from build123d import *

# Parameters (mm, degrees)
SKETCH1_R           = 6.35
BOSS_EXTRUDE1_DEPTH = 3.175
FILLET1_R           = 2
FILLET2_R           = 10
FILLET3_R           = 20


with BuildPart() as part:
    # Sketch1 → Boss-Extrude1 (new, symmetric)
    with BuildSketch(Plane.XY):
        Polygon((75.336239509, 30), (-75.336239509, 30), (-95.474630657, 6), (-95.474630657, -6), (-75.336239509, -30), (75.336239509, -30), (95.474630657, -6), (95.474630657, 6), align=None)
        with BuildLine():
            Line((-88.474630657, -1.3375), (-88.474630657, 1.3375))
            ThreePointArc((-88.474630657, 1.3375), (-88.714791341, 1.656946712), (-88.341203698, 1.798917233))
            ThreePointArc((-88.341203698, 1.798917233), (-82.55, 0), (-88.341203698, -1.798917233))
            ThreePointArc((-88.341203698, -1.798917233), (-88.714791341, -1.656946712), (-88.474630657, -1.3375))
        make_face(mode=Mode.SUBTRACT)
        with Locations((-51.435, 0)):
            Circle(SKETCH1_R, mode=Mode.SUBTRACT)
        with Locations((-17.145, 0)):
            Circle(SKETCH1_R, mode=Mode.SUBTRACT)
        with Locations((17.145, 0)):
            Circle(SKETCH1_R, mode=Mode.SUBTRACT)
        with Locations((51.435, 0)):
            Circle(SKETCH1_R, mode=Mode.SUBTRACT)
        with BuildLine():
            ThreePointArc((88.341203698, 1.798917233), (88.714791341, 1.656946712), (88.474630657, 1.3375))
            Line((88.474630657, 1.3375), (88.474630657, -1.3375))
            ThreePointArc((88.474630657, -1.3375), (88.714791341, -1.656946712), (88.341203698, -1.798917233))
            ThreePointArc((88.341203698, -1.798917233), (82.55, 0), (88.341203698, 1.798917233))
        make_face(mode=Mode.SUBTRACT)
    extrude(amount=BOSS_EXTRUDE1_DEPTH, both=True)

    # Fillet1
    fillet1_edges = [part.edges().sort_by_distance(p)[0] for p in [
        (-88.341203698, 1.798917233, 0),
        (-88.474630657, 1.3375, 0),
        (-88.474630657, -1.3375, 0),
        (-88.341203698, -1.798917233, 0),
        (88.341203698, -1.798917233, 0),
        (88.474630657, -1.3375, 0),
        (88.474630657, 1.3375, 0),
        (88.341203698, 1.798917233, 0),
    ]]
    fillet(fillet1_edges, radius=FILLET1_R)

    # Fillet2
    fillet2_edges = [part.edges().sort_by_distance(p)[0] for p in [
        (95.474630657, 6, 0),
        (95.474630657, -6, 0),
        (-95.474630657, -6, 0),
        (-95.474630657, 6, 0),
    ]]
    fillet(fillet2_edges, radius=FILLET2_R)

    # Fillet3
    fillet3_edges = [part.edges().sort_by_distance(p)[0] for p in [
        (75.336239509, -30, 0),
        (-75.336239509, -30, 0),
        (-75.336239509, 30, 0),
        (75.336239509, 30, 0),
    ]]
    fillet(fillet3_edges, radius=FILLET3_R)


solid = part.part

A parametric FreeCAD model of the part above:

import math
import FreeCAD as App
import Part
import Sketcher

V = App.Vector
Q = App.Units.Quantity


def edges_at(feature, points):
    """Names of the edges that pass closest to the given points."""
    edges = feature.Shape.Edges
    near = lambda p: min(range(len(edges)), key=lambda i: edges[i].distToShape(Part.Vertex(*p))[0])
    return sorted({f"Edge{near(p) + 1}" for p in points})


def add_polygon(sketch, points):
    """Adds a closed chain of lines whose ends are joined by coincident constraints."""
    first, n = sketch.GeometryCount, len(points)
    for a, b in zip(points, points[1:] + points[:1]):
        sketch.addGeometry(Part.LineSegment(App.Vector(*a, 0), App.Vector(*b, 0)), False)
    for i in range(n):
        sketch.addConstraint(Sketcher.Constraint("Coincident", first + i, 2, first + (i + 1) % n, 1))

doc = App.newDocument("Part")
body = doc.addObject("PartDesign::Body", "Body")

sketch1 = body.newObject("Sketcher::SketchObject", "Sketch")
sketch1.AttachmentSupport = (doc.getObject("XY_Plane"), [""])
sketch1.MapMode = "FlatFace"
add_polygon(sketch1, [(75.34, 30), (-75.34, 30), (-95.47, 6), (-95.47, -6), (-75.34, -30), (75.34, -30), (95.47, -6), (95.47, 6)])
sketch1.addGeometry(Part.ArcOfCircle(Part.Circle(V(-88.47, -1.59, 0), V(0, 0, 1), 0.25), math.radians(90), math.radians(302)), False)
sketch1.addGeometry(Part.LineSegment(V(-88.47, -1.34, 0), V(-88.47, 1.34, 0)), False)
sketch1.addGeometry(Part.ArcOfCircle(Part.Circle(V(-88.47, 1.59, 0), V(0, 0, 1), 0.25), math.radians(58), math.radians(270)), False)
sketch1.addGeometry(Part.ArcOfCircle(Part.Circle(V(-85.72, 0, 0), V(0, 0, 1), 3.17), math.radians(-145), math.radians(145)), False)
sketch1.addGeometry(Part.Circle(V(-51.44, 0, 0), V(0, 0, 1), 6.35), False)
sketch1.addGeometry(Part.Circle(V(-17.14, 0, 0), V(0, 0, 1), 6.35), False)
sketch1.addGeometry(Part.Circle(V(17.14, 0, 0), V(0, 0, 1), 6.35), False)
sketch1.addGeometry(Part.Circle(V(51.44, 0, 0), V(0, 0, 1), 6.35), False)
sketch1.addGeometry(Part.ArcOfCircle(Part.Circle(V(85.72, 0, 0), V(0, 0, 1), 3.17), math.radians(35), math.radians(325)), False)
sketch1.addGeometry(Part.ArcOfCircle(Part.Circle(V(88.47, 1.59, 0), V(0, 0, 1), 0.25), math.radians(-90), math.radians(122)), False)
sketch1.addGeometry(Part.LineSegment(V(88.47, 1.34, 0), V(88.47, -1.34, 0)), False)
sketch1.addGeometry(Part.ArcOfCircle(Part.Circle(V(88.47, -1.59, 0), V(0, 0, 1), 0.25), math.radians(-122), math.radians(90)), False)
sketch1.addConstraint(Sketcher.Constraint("Coincident", 8, 1, 9, 1))
sketch1.addConstraint(Sketcher.Constraint("Coincident", 9, 2, 10, 2))
sketch1.addConstraint(Sketcher.Constraint("Coincident", 10, 1, 11, 2))
sketch1.addConstraint(Sketcher.Constraint("Coincident", 11, 1, 8, 2))
sketch1.addConstraint(Sketcher.Constraint("Coincident", 16, 1, 17, 2))
sketch1.addConstraint(Sketcher.Constraint("Coincident", 17, 1, 18, 1))
sketch1.addConstraint(Sketcher.Constraint("Coincident", 18, 2, 19, 2))
sketch1.addConstraint(Sketcher.Constraint("Coincident", 19, 1, 16, 2))
sketch1.addConstraint(Sketcher.Constraint("Horizontal", 0))
sketch1.addConstraint(Sketcher.Constraint("Vertical", 2))
sketch1.addConstraint(Sketcher.Constraint("Horizontal", 4))
sketch1.addConstraint(Sketcher.Constraint("Vertical", 6))
sketch1.addConstraint(Sketcher.Constraint("Vertical", 9))
sketch1.addConstraint(Sketcher.Constraint("Vertical", 18))
sketch1.addConstraint(Sketcher.Constraint("Equal", 8, 10))
sketch1.addConstraint(Sketcher.Constraint("Equal", 12, 13))
sketch1.addConstraint(Sketcher.Constraint("Equal", 13, 14))
sketch1.addConstraint(Sketcher.Constraint("Equal", 14, 15))
sketch1.addConstraint(Sketcher.Constraint("Equal", 11, 16))
sketch1.addConstraint(Sketcher.Constraint("Equal", 10, 17))
sketch1.addConstraint(Sketcher.Constraint("Equal", 17, 19))
sketch1.addConstraint(Sketcher.Constraint("Symmetric", 13, 3, 14, 3, -1, 1))
sketch1.addConstraint(Sketcher.Constraint("Symmetric", 12, 3, 15, 3, -1, 1))
sketch1.addConstraint(Sketcher.Constraint("Symmetric", 11, 3, 16, 3, -1, 1))
sketch1.addConstraint(Sketcher.Constraint("Symmetric", 8, 3, 17, 3, -1, 1))
sketch1.addConstraint(Sketcher.Constraint("Symmetric", 10, 3, 19, 3, -1, 1))
sketch1.addConstraint(Sketcher.Constraint("Symmetric", 0, 2, 4, 2, -1, 1))
sketch1.addConstraint(Sketcher.Constraint("Symmetric", 1, 2, 5, 2, -1, 1))
sketch1.addConstraint(Sketcher.Constraint("Symmetric", 10, 3, 17, 3, -2))
sketch1.addConstraint(Sketcher.Constraint("PointOnObject", 11, 3, -1))
sketch1.addConstraint(Sketcher.Constraint("PointOnObject", 12, 3, -1))
sketch1.addConstraint(Sketcher.Constraint("PointOnObject", 13, 3, -1))
sketch1.addConstraint(Sketcher.Constraint("Parallel", 3, 7))
sketch1.addConstraint(Sketcher.Constraint("Horizontal", 2, 2, 5, 2))
sketch1.addConstraint(Sketcher.Constraint("Horizontal", 1, 2, 6, 2))
sketch1.addConstraint(Sketcher.Constraint("Vertical", 0, 2, 3, 2))
sketch1.addConstraint(Sketcher.Constraint("Vertical", 10, 3, 8, 1))
sketch1.addConstraint(Sketcher.Constraint("Vertical", 19, 3, 17, 1))
sketch1.addConstraint(Sketcher.Constraint("Diameter", 12, Q("12.7 mm")))
sketch1.addConstraint(Sketcher.Constraint("DistanceY", 2, 2, 2, 1, Q("12 mm")))
sketch1.addConstraint(Sketcher.Constraint("Angle", 1, Q("-130 deg")))
sketch1.addConstraint(Sketcher.Constraint("Radius", 8, Q("0.25 mm")))
sketch1.addConstraint(Sketcher.Constraint("DistanceY", -1, 1, 0, 2, Q("30 mm")))
sketch1.addConstraint(Sketcher.Constraint("Radius", 11, Q("3.175 mm")))
sketch1.addConstraint(Sketcher.Constraint("DistanceX", 1, 2, 10, 3, Q("7 mm")))
sketch1.addConstraint(Sketcher.Constraint("DistanceY", 9, 1, 9, 2, Q("2.675 mm")))
sketch1.addConstraint(Sketcher.Constraint("DistanceX", 11, 3, 12, 3, Q("34.29 mm")))
sketch1.addConstraint(Sketcher.Constraint("DistanceX", 12, 3, 13, 3, Q("34.29 mm")))
sketch1.addConstraint(Sketcher.Constraint("DistanceX", 13, 3, 14, 3, Q("34.29 mm")))
sketch1.addConstraint(Sketcher.Constraint("DistanceX", 0, 2, 0, 1, Q("150.672479 mm")))
pad1 = body.newObject("PartDesign::Pad", "Pad")
pad1.Profile = sketch1
pad1.Length = 6.35
pad1.Midplane = True
doc.recompute()

fillet = body.newObject("PartDesign::Fillet", "Fillet")
fillet.Base = (pad1, edges_at(pad1, [
    (-88.341, 1.799, 0),
    (-88.475, 1.337, 0),
    (-88.475, -1.337, 0),
    (-88.341, -1.799, 0),
    (88.341, -1.799, 0),
    (88.475, -1.337, 0),
    (88.475, 1.337, 0),
    (88.341, 1.799, 0),
]))
fillet.Radius = 2
doc.recompute()

fillet2 = body.newObject("PartDesign::Fillet", "Fillet001")
fillet2.Base = (fillet, edges_at(fillet, [
    (95.475, 6, 0),
    (95.475, -6, 0),
    (-95.475, -6, 0),
    (-95.475, 6, 0),
]))
fillet2.Radius = 10
doc.recompute()

fillet3 = body.newObject("PartDesign::Fillet", "Fillet002")
fillet3.Base = (fillet2, edges_at(fillet2, [
    (75.336, -30, 0),
    (-75.336, -30, 0),
    (-75.336, 30, 0),
    (75.336, 30, 0),
]))
fillet3.Radius = 20

doc.recompute()
